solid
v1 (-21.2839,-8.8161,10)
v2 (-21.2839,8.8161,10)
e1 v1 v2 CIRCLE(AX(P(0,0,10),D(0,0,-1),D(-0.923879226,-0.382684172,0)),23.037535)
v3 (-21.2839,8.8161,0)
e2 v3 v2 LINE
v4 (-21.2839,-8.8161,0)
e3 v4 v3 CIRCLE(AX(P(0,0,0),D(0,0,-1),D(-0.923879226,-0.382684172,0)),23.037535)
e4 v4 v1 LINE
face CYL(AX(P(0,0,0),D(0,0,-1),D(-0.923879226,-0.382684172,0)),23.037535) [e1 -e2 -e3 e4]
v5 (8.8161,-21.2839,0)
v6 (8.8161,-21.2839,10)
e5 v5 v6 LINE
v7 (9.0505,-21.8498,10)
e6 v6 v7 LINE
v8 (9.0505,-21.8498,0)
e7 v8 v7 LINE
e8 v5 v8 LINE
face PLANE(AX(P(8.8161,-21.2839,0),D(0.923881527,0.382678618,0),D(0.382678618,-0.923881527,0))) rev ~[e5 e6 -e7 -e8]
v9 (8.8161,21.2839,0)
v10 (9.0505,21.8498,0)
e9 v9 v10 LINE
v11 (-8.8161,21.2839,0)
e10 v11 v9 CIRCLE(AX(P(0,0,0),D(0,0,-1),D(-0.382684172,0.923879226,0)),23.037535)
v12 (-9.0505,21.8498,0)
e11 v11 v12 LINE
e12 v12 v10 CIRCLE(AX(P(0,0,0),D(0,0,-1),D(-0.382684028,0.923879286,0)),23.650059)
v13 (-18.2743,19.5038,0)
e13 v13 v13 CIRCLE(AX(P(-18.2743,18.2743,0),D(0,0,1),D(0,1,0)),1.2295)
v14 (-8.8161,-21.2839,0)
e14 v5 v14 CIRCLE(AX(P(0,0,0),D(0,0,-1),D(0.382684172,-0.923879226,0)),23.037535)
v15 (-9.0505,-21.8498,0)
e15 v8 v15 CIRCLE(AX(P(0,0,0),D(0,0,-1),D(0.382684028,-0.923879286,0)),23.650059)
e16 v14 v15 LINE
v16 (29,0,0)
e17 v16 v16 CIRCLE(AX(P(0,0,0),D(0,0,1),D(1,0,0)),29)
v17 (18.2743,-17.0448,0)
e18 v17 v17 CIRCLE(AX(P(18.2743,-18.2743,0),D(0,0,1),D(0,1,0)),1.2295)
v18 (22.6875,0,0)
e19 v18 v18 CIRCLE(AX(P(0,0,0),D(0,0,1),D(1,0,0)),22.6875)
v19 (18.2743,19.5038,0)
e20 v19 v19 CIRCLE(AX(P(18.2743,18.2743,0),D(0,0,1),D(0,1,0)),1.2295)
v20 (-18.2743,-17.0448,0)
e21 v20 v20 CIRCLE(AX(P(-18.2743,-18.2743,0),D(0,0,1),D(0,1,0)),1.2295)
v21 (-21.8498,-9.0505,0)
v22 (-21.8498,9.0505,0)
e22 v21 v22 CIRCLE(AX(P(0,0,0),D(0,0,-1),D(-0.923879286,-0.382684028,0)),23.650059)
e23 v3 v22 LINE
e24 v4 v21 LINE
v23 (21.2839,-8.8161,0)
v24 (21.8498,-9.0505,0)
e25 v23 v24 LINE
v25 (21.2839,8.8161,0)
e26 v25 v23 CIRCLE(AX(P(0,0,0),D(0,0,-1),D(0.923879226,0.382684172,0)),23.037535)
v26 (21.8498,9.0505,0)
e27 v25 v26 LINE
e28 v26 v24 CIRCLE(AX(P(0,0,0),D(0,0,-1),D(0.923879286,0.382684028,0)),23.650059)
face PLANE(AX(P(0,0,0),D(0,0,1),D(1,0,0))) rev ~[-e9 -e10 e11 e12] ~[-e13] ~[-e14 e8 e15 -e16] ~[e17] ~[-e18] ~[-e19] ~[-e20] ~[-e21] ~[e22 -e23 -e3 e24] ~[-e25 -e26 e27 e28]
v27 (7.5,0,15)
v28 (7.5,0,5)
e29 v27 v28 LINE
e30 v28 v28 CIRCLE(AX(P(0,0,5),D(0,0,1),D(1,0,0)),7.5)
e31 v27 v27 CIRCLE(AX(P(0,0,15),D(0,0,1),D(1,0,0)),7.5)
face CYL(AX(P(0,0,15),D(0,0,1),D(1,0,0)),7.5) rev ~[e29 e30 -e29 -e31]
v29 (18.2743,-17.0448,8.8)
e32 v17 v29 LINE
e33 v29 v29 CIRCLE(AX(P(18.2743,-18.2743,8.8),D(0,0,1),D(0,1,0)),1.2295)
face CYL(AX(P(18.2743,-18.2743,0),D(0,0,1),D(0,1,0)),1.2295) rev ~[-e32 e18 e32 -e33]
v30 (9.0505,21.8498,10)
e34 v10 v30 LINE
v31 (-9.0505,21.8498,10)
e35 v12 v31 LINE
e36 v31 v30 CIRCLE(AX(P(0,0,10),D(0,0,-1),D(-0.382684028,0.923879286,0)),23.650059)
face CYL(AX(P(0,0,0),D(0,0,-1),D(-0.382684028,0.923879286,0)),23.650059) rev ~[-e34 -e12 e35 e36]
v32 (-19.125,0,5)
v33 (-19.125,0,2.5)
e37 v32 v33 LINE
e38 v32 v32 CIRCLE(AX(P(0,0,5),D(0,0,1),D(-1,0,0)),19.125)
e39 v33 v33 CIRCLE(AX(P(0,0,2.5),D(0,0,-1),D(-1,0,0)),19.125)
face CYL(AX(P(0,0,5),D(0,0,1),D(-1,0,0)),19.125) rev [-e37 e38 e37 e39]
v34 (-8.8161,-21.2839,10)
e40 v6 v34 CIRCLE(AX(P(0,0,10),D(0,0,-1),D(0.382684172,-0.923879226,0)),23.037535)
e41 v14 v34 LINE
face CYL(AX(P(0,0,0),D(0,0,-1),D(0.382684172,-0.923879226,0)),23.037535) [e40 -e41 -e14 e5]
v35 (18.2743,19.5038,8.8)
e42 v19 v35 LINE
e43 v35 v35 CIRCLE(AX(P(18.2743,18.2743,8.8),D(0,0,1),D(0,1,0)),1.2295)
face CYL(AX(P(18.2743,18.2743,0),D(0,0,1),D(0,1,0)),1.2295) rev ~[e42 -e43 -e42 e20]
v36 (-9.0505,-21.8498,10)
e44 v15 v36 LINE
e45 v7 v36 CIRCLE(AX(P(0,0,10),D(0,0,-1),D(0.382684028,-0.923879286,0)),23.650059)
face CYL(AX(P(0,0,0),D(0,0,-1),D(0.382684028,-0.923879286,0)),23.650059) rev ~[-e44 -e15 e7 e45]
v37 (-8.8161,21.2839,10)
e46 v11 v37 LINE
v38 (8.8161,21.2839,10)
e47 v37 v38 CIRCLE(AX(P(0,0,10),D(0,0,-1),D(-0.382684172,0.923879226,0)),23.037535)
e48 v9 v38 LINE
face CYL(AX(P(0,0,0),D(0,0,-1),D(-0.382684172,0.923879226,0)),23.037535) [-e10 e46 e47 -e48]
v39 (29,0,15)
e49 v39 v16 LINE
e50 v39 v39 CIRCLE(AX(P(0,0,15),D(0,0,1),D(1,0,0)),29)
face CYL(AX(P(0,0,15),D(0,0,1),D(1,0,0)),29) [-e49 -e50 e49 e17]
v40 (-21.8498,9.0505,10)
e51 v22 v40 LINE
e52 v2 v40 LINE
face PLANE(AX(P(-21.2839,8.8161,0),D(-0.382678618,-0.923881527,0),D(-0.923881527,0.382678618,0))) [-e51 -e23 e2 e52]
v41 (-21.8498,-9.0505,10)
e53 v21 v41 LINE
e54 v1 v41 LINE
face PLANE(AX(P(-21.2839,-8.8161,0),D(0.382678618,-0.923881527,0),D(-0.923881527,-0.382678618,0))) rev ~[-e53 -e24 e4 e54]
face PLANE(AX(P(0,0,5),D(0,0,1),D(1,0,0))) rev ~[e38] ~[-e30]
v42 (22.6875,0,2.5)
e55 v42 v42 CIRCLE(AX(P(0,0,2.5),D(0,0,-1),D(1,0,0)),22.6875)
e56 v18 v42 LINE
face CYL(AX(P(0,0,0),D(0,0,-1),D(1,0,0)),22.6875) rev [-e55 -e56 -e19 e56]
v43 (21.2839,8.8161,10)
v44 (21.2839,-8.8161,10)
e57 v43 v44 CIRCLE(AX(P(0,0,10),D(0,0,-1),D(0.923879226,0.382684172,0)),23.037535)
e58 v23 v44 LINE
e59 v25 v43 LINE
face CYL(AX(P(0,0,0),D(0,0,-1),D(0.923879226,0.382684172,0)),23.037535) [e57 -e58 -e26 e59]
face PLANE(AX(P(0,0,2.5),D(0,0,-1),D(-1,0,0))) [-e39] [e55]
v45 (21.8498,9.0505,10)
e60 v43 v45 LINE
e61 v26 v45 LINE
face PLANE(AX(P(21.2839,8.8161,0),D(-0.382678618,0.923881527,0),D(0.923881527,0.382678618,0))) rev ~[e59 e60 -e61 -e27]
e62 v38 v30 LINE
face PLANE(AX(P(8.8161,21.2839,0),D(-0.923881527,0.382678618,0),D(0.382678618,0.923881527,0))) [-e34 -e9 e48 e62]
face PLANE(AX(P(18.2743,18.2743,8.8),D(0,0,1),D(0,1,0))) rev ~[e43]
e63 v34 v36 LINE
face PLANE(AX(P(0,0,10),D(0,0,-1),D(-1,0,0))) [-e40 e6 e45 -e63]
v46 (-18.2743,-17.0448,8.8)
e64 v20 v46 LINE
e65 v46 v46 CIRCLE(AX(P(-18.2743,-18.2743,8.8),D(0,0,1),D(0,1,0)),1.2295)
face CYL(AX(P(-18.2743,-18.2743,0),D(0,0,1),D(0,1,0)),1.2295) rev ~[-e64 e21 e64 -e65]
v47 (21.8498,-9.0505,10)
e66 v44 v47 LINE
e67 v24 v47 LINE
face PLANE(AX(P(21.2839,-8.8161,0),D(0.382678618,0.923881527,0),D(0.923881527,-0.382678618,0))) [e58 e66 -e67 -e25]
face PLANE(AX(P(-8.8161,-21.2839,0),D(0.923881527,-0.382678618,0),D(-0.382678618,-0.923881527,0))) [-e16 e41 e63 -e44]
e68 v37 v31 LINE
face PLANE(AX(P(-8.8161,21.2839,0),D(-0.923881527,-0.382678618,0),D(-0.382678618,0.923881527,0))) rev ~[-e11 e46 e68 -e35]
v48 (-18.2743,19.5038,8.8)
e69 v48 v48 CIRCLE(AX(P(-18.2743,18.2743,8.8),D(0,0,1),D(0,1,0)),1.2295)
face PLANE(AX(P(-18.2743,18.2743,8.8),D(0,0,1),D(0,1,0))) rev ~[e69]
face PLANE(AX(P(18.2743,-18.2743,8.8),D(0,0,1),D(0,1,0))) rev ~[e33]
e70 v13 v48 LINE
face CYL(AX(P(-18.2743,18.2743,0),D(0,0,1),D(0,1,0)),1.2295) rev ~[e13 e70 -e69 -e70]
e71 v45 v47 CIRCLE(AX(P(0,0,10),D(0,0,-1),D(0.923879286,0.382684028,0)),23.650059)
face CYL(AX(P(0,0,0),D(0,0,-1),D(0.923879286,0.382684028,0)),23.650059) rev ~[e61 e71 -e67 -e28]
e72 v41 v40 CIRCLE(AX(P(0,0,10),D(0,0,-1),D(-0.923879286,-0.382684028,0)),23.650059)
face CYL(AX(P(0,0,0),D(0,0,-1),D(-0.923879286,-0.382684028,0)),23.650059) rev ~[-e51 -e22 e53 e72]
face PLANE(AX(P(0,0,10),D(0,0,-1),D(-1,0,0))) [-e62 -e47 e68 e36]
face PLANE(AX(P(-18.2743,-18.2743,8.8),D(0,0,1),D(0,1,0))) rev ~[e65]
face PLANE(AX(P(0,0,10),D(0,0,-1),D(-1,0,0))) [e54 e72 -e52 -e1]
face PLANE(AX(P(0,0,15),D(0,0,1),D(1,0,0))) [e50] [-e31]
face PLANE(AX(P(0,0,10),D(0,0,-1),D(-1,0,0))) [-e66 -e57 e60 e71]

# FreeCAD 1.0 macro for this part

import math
import FreeCAD as App
import Part
import Sketcher

V = App.Vector
Q = App.Units.Quantity

doc = App.newDocument("Part")
body = doc.addObject("PartDesign::Body", "Body")

sketch1 = body.newObject("Sketcher::SketchObject", "Sketch")
sketch1.AttachmentSupport = (doc.getObject("XY_Plane"), [""])
sketch1.MapMode = "FlatFace"
sketch1.addGeometry(Part.Circle(V(0, 0, 0), V(0, 0, 1), 24), False)
sketch1.addGeometry(Part.Circle(V(0, 0, 0), V(0, 0, 1), 22.6875), False)
sketch1.addConstraint(Sketcher.Constraint("Coincident", 0, 3, -1, 1))
sketch1.addConstraint(Sketcher.Constraint("Coincident", 1, 3, -1, 1))
sketch1.addConstraint(Sketcher.Constraint("Diameter", 0, Q("48 mm")))
sketch1.addConstraint(Sketcher.Constraint("Diameter", 1, Q("45.375 mm")))
pad1 = body.newObject("PartDesign::Pad", "Pad")
pad1.Profile = sketch1
pad1.Length = 5

sketch2 = body.newObject("Sketcher::SketchObject", "Sketch001")
sketch2.AttachmentSupport = (doc.getObject("XY_Plane"), [""])
sketch2.MapMode = "FlatFace"
sketch2.AttachmentOffset = App.Placement(V(0, 0, 5), App.Rotation())
sketch2.addGeometry(Part.Circle(V(0, 0, 0), V(0, 0, 1), 24), False)
sketch2.addConstraint(Sketcher.Constraint("Coincident", 0, 3, -1, 1))
sketch2.addConstraint(Sketcher.Constraint("Diameter", 0, Q("48 mm")))
pad2 = body.newObject("PartDesign::Pad", "Pad001")
pad2.Profile = sketch2
pad2.Length = 10

sketch3 = body.newObject("Sketcher::SketchObject", "Sketch002")
sketch3.AttachmentSupport = (doc.getObject("XY_Plane"), [""])
sketch3.MapMode = "FlatFace"
sketch3.addGeometry(Part.ArcOfCircle(Part.Circle(V(0, 0, 0), V(0, 0, 1), 23.037535), math.radians(67.499954), math.radians(112.500046)), False)
sketch3.addGeometry(Part.LineSegment(V(-8.8161, 21.2839, 0), V(-9.0505, 21.8498, 0)), False)
sketch3.addGeometry(Part.ArcOfCircle(Part.Circle(V(0, 0, 0), V(0, 0, 1), 23.650059), math.radians(67.499963), math.radians(112.500037)), False)
sketch3.addGeometry(Part.LineSegment(V(9.0505, 21.8498, 0), V(8.8161, 21.2839, 0)), False)
sketch3.addGeometry(Part.ArcOfCircle(Part.Circle(V(0, 0, 0), V(0, 0, 1), 23.037535), math.radians(-22.500046), math.radians(22.500046)), False)
sketch3.addGeometry(Part.LineSegment(V(21.2839, 8.8161, 0), V(21.8498, 9.0505, 0)), False)
sketch3.addGeometry(Part.ArcOfCircle(Part.Circle(V(0, 0, 0), V(0, 0, 1), 23.650059), math.radians(-22.500037), math.radians(22.500037)), False)
sketch3.addGeometry(Part.LineSegment(V(21.8498, -9.0505, 0), V(21.2839, -8.8161, 0)), False)
sketch3.addGeometry(Part.ArcOfCircle(Part.Circle(V(0, 0, 0), V(0, 0, 1), 23.037535), math.radians(-112.500046), math.radians(-67.499954)), False)
sketch3.addGeometry(Part.LineSegment(V(8.8161, -21.2839, 0), V(9.0505, -21.8498, 0)), False)
sketch3.addGeometry(Part.ArcOfCircle(Part.Circle(V(0, 0, 0), V(0, 0, 1), 23.650059), math.radians(-112.500037), math.radians(-67.499963)), False)
sketch3.addGeometry(Part.LineSegment(V(-9.0505, -21.8498, 0), V(-8.8161, -21.2839, 0)), False)
sketch3.addGeometry(Part.ArcOfCircle(Part.Circle(V(0, 0, 0), V(0, 0, 1), 23.037535), math.radians(157.499954), math.radians(202.500046)), False)
sketch3.addGeometry(Part.LineSegment(V(-21.2839, -8.8161, 0), V(-21.8498, -9.0505, 0)), False)
sketch3.addGeometry(Part.ArcOfCircle(Part.Circle(V(0, 0, 0), V(0, 0, 1), 23.650059), math.radians(157.499963), math.radians(202.500037)), False)
sketch3.addGeometry(Part.LineSegment(V(-21.8498, 9.0505, 0), V(-21.2839, 8.8161, 0)), False)
sketch3.addConstraint(Sketcher.Constraint("Coincident", 0, 2, 1, 1))
sketch3.addConstraint(Sketcher.Constraint("Coincident", 1, 2, 2, 2))
sketch3.addConstraint(Sketcher.Constraint("Coincident", 2, 1, 3, 1))
sketch3.addConstraint(Sketcher.Constraint("Coincident", 3, 2, 0, 1))
sketch3.addConstraint(Sketcher.Constraint("Coincident", 4, 2, 5, 1))
sketch3.addConstraint(Sketcher.Constraint("Coincident", 5, 2, 6, 2))
sketch3.addConstraint(Sketcher.Constraint("Coincident", 6, 1, 7, 1))
sketch3.addConstraint(Sketcher.Constraint("Coincident", 7, 2, 4, 1))
sketch3.addConstraint(Sketcher.Constraint("Coincident", 8, 2, 9, 1))
sketch3.addConstraint(Sketcher.Constraint("Coincident", 9, 2, 10, 2))
sketch3.addConstraint(Sketcher.Constraint("Coincident", 10, 1, 11, 1))
sketch3.addConstraint(Sketcher.Constraint("Coincident", 11, 2, 8, 1))
sketch3.addConstraint(Sketcher.Constraint("Coincident", 12, 2, 13, 1))
sketch3.addConstraint(Sketcher.Constraint("Coincident", 13, 2, 14, 2))
sketch3.addConstraint(Sketcher.Constraint("Coincident", 14, 1, 15, 1))
sketch3.addConstraint(Sketcher.Constraint("Coincident", 15, 2, 12, 1))
sketch3.addConstraint(Sketcher.Constraint("Coincident", 0, 3, -1, 1))
sketch3.addConstraint(Sketcher.Constraint("Coincident", 2, 3, -1, 1))
sketch3.addConstraint(Sketcher.Constraint("Coincident", 4, 3, -1, 1))
sketch3.addConstraint(Sketcher.Constraint("Coincident", 6, 3, -1, 1))
sketch3.addConstraint(Sketcher.Constraint("Coincident", 8, 3, -1, 1))
sketch3.addConstraint(Sketcher.Constraint("Coincident", 10, 3, -1, 1))
sketch3.addConstraint(Sketcher.Constraint("Coincident", 12, 3, -1, 1))
sketch3.addConstraint(Sketcher.Constraint("Coincident", 14, 3, -1, 1))
sketch3.addConstraint(Sketcher.Constraint("Equal", 0, 4))
sketch3.addConstraint(Sketcher.Constraint("Equal", 2, 6))
sketch3.addConstraint(Sketcher.Constraint("Equal", 4, 8))
sketch3.addConstraint(Sketcher.Constraint("Equal", 6, 10))
sketch3.addConstraint(Sketcher.Constraint("Equal", 8, 12))
sketch3.addConstraint(Sketcher.Constraint("Equal", 10, 14))
sketch3.addConstraint(Sketcher.Constraint("Perpendicular", 1, 5))
sketch3.addConstraint(Sketcher.Constraint("Perpendicular", 3, 7))
sketch3.addConstraint(Sketcher.Constraint("Perpendicular", 5, 9))
sketch3.addConstraint(Sketcher.Constraint("Perpendicular", 7, 11))
sketch3.addConstraint(Sketcher.Constraint("Perpendicular", 9, 13))
sketch3.addConstraint(Sketcher.Constraint("Perpendicular", 11, 15))
sketch3.addConstraint(Sketcher.Constraint("Horizontal", 1, 2, 2, 1))
sketch3.addConstraint(Sketcher.Constraint("Horizontal", 0, 2, 3, 2))
sketch3.addConstraint(Sketcher.Constraint("Horizontal", 9, 2, 10, 1))
sketch3.addConstraint(Sketcher.Constraint("Horizontal", 7, 2, 12, 2))
sketch3.addConstraint(Sketcher.Constraint("Horizontal", 5, 2, 14, 1))
sketch3.addConstraint(Sketcher.Constraint("Vertical", 5, 2, 6, 1))
sketch3.addConstraint(Sketcher.Constraint("Vertical", 3, 2, 8, 2))
sketch3.addConstraint(Sketcher.Constraint("Radius", 2, Q("23.65 mm")))
sketch3.addConstraint(Sketcher.Constraint("Angle", 1, Q("112.4997 deg")))
sketch3.addConstraint(Sketcher.Constraint("Radius", 0, Q("23.0375 mm")))
sketch3.addConstraint(Sketcher.Constraint("DistanceX", 0, 2, -1, 1, Q("8.816 mm")))
sketch3.addConstraint(Sketcher.Constraint("DistanceX", -1, 1, 4, 2, Q("21.284 mm")))
pocket1 = body.newObject("PartDesign::Pocket", "Pocket")
pocket1.Profile = sketch3
pocket1.Length = 10
pocket1.Reversed = True

sketch4 = body.newObject("Sketcher::SketchObject", "Sketch003")
sketch4.AttachmentSupport = (doc.getObject("XY_Plane"), [""])
sketch4.MapMode = "FlatFace"
sketch4.AttachmentOffset = App.Placement(V(0, 0, 15), App.Rotation())
sketch4.addGeometry(Part.Circle(V(0, 0, 0), V(0, 0, 1), 7.5), False)
sketch4.addConstraint(Sketcher.Constraint("Coincident", 0, 3, -1, 1))
sketch4.addConstraint(Sketcher.Constraint("Diameter", 0, Q("15 mm")))
pocket2 = body.newObject("PartDesign::Pocket", "Pocket001")
pocket2.Profile = sketch4
pocket2.Length = 10

sketch5 = body.newObject("Sketcher::SketchObject", "Sketch004")
sketch5.AttachmentSupport = (doc.getObject("XY_Plane"), [""])
sketch5.MapMode = "FlatFace"
sketch5.AttachmentOffset = App.Placement(V(0, 0, 5), App.Rotation())
sketch5.addGeometry(Part.Circle(V(0, 0, 0), V(0, 0, 1), 22.6875), False)
sketch5.addGeometry(Part.Circle(V(0, 0, 0), V(0, 0, 1), 19.125), False)
sketch5.addConstraint(Sketcher.Constraint("Coincident", 0, 3, -1, 1))
sketch5.addConstraint(Sketcher.Constraint("Coincident", 1, 3, -1, 1))
sketch5.addConstraint(Sketcher.Constraint("Diameter", 1, Q("38.25 mm")))
sketch5.addConstraint(Sketcher.Constraint("Diameter", 0, Q("45.375 mm")))
pad3 = body.newObject("PartDesign::Pad", "Pad002")
pad3.Profile = sketch5
pad3.Length = 2.5
pad3.Reversed = True

sketch6 = body.newObject("Sketcher::SketchObject", "Sketch005")
sketch6.AttachmentSupport = (doc.getObject("XY_Plane"), [""])
sketch6.MapMode = "FlatFace"
sketch6.AttachmentOffset = App.Placement(V(0, 0, 15), App.Rotation())
sketch6.addGeometry(Part.Circle(V(0, 0, 0), V(0, 0, 1), 29), False)
sketch6.addGeometry(Part.Circle(V(0, 0, 0), V(0, 0, 1), 24), False)
sketch6.addConstraint(Sketcher.Constraint("Coincident", 0, 3, -1, 1))
sketch6.addConstraint(Sketcher.Constraint("Coincident", 1, 3, -1, 1))
sketch6.addConstraint(Sketcher.Constraint("Diameter", 0, Q("58 mm")))
sketch6.addConstraint(Sketcher.Constraint("Diameter", 1, Q("48 mm")))
pad4 = body.newObject("PartDesign::Pad", "Pad003")
pad4.Profile = sketch6
pad4.Length = 15
pad4.Reversed = True

sketch7 = body.newObject("Sketcher::SketchObject", "Sketch006")
sketch7.AttachmentSupport = (doc.getObject("XY_Plane"), [""])
sketch7.MapMode = "FlatFace"
sketch7.addGeometry(Part.Circle(V(-18.2743, 18.2743, 0), V(0, 0, 1), 1.2295), False)
sketch7.addGeometry(Part.Circle(V(18.2743, 18.2743, 0), V(0, 0, 1), 1.2295), False)
sketch7.addGeometry(Part.Circle(V(18.2743, -18.2743, 0), V(0, 0, 1), 1.2295), False)
sketch7.addGeometry(Part.Circle(V(-18.2743, -18.2743, 0), V(0, 0, 1), 1.2295), False)
sketch7.addConstraint(Sketcher.Constraint("Equal", 0, 1))
sketch7.addConstraint(Sketcher.Constraint("Equal", 1, 2))
sketch7.addConstraint(Sketcher.Constraint("Equal", 2, 3))
sketch7.addConstraint(Sketcher.Constraint("Symmetric", 0, 3, 2, 3, -1, 1))
sketch7.addConstraint(Sketcher.Constraint("Symmetric", 1, 3, 3, 3, -1, 1))
sketch7.addConstraint(Sketcher.Constraint("Symmetric", 0, 3, 1, 3, -2))
sketch7.addConstraint(Sketcher.Constraint("Diameter", 0, Q("2.459 mm")))
sketch7.addConstraint(Sketcher.Constraint("DistanceX", 0, 3, -1, 1, Q("18.2743 mm")))
sketch7.addConstraint(Sketcher.Constraint("DistanceY", -1, 1, 0, 3, Q("18.2743 mm")))
doc.recompute()
hole = body.newObject("PartDesign::Hole", "Hole")
hole.Profile = sketch7
hole.ThreadType = "None"
hole.Diameter = 2.459
hole.DepthType = "Dimension"
hole.Depth = 8.8
hole.DrillPoint = "Flat"
hole.Reversed = True

doc.recompute()
